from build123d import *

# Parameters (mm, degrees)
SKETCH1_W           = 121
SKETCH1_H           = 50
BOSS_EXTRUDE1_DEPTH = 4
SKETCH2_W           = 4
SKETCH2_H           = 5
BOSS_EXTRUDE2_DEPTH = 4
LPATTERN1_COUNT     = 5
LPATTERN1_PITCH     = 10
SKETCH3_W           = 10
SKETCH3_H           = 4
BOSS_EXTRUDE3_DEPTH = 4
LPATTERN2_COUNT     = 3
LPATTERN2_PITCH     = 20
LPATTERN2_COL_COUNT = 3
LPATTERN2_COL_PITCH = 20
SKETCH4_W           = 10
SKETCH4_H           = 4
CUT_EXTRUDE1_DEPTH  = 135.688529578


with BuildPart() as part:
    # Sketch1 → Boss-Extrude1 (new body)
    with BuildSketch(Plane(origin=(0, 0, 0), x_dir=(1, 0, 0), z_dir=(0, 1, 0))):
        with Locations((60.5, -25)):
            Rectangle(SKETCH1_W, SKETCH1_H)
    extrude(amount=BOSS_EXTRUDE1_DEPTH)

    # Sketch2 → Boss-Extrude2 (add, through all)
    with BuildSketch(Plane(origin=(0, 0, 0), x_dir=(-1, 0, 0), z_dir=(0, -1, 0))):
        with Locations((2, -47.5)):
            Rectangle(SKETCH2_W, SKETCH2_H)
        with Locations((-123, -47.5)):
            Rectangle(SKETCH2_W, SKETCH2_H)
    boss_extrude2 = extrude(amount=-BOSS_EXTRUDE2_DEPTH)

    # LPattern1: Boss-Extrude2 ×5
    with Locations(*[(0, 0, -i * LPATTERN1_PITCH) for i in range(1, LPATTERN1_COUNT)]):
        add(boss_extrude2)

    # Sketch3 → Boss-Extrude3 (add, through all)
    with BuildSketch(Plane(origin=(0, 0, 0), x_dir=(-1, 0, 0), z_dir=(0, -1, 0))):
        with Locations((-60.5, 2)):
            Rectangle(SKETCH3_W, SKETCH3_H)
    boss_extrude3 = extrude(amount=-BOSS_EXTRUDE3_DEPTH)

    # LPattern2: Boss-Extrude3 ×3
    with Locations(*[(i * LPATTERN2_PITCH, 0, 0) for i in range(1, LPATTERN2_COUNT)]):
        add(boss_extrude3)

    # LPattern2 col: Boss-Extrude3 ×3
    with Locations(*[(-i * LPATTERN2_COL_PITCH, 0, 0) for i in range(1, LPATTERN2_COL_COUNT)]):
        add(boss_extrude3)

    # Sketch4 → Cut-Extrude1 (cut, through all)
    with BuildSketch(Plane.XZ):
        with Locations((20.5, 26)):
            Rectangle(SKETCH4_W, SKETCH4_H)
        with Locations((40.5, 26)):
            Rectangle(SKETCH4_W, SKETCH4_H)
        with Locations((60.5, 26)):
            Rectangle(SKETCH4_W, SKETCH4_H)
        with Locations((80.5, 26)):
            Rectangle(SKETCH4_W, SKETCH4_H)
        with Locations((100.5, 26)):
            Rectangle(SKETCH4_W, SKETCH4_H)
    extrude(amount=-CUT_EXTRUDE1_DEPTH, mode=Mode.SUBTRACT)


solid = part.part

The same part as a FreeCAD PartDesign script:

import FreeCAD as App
import Part
import Sketcher
Q = App.Units.Quantity

doc = App.newDocument("Part")
body = doc.addObject("PartDesign::Body", "Body")

sketch1 = doc.addObject("Sketcher::SketchObject", "Sketch")
body.addObject(sketch1)
sketch1.AttachmentSupport = (doc.XZ_Plane, [""])
sketch1.MapMode = "FlatFace"
sketch1.addGeometry([
    Part.LineSegment(App.Vector(0, 0, 0), App.Vector(0, 50, 0)),
    Part.LineSegment(App.Vector(0, 50, 0), App.Vector(121, 50, 0)),
    Part.LineSegment(App.Vector(121, 50, 0), App.Vector(121, 0, 0)),
    Part.LineSegment(App.Vector(121, 0, 0), App.Vector(0, 0, 0)),
], False)
sketch1.addConstraint([
    Sketcher.Constraint("Coincident", 0, 2, 1, 1),
    Sketcher.Constraint("Coincident", 1, 2, 2, 1),
    Sketcher.Constraint("Coincident", 2, 2, 3, 1),
    Sketcher.Constraint("Coincident", 3, 2, 0, 1),
    Sketcher.Constraint("Vertical", 0),
    Sketcher.Constraint("Horizontal", 1),
    Sketcher.Constraint("Vertical", 2),
    Sketcher.Constraint("Horizontal", 3),
    Sketcher.Constraint("Coincident", 3, 2, -1, 1),
    Sketcher.Constraint("DistanceX", 1, 1, 1, 2, Q("121 mm")),
    Sketcher.Constraint("DistanceY", 0, 1, 0, 2, Q("50 mm")),
])
pad1 = doc.addObject("PartDesign::Pad", "Pad")
body.addObject(pad1)
pad1.Profile = sketch1
pad1.Length = 4
pad1.Reversed = True

sketch2 = doc.addObject("Sketcher::SketchObject", "Sketch001")
body.addObject(sketch2)
sketch2.AttachmentSupport = (doc.XZ_Plane, [""])
sketch2.MapMode = "FlatFace"
sketch2.addGeometry([
    Part.LineSegment(App.Vector(0, 45, 0), App.Vector(0, 50, 0)),
    Part.LineSegment(App.Vector(0, 50, 0), App.Vector(-4, 50, 0)),
    Part.LineSegment(App.Vector(-4, 50, 0), App.Vector(-4, 45, 0)),
    Part.LineSegment(App.Vector(-4, 45, 0), App.Vector(0, 45, 0)),
    Part.LineSegment(App.Vector(125, 45, 0), App.Vector(125, 50, 0)),
    Part.LineSegment(App.Vector(125, 50, 0), App.Vector(121, 50, 0)),
    Part.LineSegment(App.Vector(121, 50, 0), App.Vector(121, 45, 0)),
    Part.LineSegment(App.Vector(121, 45, 0), App.Vector(125, 45, 0)),
], False)
sketch2.addConstraint([
    Sketcher.Constraint("Coincident", 0, 2, 1, 1),
    Sketcher.Constraint("Coincident", 1, 2, 2, 1),
    Sketcher.Constraint("Coincident", 2, 2, 3, 1),
    Sketcher.Constraint("Coincident", 3, 2, 0, 1),
    Sketcher.Constraint("Coincident", 4, 2, 5, 1),
    Sketcher.Constraint("Coincident", 5, 2, 6, 1),
    Sketcher.Constraint("Coincident", 6, 2, 7, 1),
    Sketcher.Constraint("Coincident", 7, 2, 4, 1),
    Sketcher.Constraint("Vertical", 0),
    Sketcher.Constraint("Horizontal", 1),
    Sketcher.Constraint("Vertical", 2),
    Sketcher.Constraint("Horizontal", 3),
    Sketcher.Constraint("Vertical", 4),
    Sketcher.Constraint("Horizontal", 5),
    Sketcher.Constraint("Vertical", 6),
    Sketcher.Constraint("Horizontal", 7),
    Sketcher.Constraint("PointOnObject", 0, 2, -2),
    Sketcher.Constraint("Horizontal", 1, 2, 4, 2),
    Sketcher.Constraint("Horizontal", 3, 2, 6, 2),
    Sketcher.Constraint("Equal", 3, 5),
    Sketcher.Constraint("DistanceX", 1, 2, 1, 1, Q("4 mm")),
    Sketcher.Constraint("DistanceY", 0, 1, 0, 2, Q("5 mm")),
    Sketcher.Constraint("DistanceY", -1, 1, 0, 2, Q("50 mm")),
    Sketcher.Constraint("DistanceX", -1, 1, 4, 2, Q("125 mm")),
])
pad2 = doc.addObject("PartDesign::Pad", "Pad001")
body.addObject(pad2)
pad2.Profile = sketch2
pad2.Length = 4
pad2.Reversed = True
doc.recompute()

linearpattern = doc.addObject("PartDesign::LinearPattern", "LinearPattern")
body.addObject(linearpattern)
linearpattern.Originals = [pad2]
linearpattern.Direction = (doc.Z_Axis, [""])
linearpattern.Mode = "offset"
linearpattern.Offset = 10
linearpattern.Occurrences = 5
linearpattern.Reversed = True
body.Tip = linearpattern

sketch3 = doc.addObject("Sketcher::SketchObject", "Sketch002")
body.addObject(sketch3)
sketch3.AttachmentSupport = (doc.XZ_Plane, [""])
sketch3.MapMode = "FlatFace"
sketch3.addGeometry([
    Part.LineSegment(App.Vector(65.5, -4, 0), App.Vector(65.5, 0, 0)),
    Part.LineSegment(App.Vector(65.5, 0, 0), App.Vector(55.5, 0, 0)),
    Part.LineSegment(App.Vector(55.5, 0, 0), App.Vector(55.5, -4, 0)),
    Part.LineSegment(App.Vector(55.5, -4, 0), App.Vector(65.5, -4, 0)),
], False)
sketch3.addConstraint([
    Sketcher.Constraint("Coincident", 0, 2, 1, 1),
    Sketcher.Constraint("Coincident", 1, 2, 2, 1),
    Sketcher.Constraint("Coincident", 2, 2, 3, 1),
    Sketcher.Constraint("Coincident", 3, 2, 0, 1),
    Sketcher.Constraint("Vertical", 0),
    Sketcher.Constraint("Horizontal", 1),
    Sketcher.Constraint("Vertical", 2),
    Sketcher.Constraint("Horizontal", 3),
    Sketcher.Constraint("PointOnObject", 0, 2, -1),
    Sketcher.Constraint("DistanceX", 1, 2, 1, 1, Q("10 mm")),
    Sketcher.Constraint("DistanceY", 0, 1, 0, 2, Q("4 mm")),
    Sketcher.Constraint("DistanceX", -1, 1, 0, 2, Q("65.5 mm")),
])
pad3 = doc.addObject("PartDesign::Pad", "Pad002")
body.addObject(pad3)
pad3.Profile = sketch3
pad3.Length = 4
pad3.Reversed = True
doc.recompute()

linearpattern2 = doc.addObject("PartDesign::LinearPattern", "LinearPattern001")
body.addObject(linearpattern2)
linearpattern2.Originals = [pad3]
linearpattern2.Direction = (doc.X_Axis, [""])
linearpattern2.Mode = "offset"
linearpattern2.Offset = 20
linearpattern2.Occurrences = 3
body.Tip = linearpattern2
doc.recompute()

linearpattern3 = doc.addObject("PartDesign::LinearPattern", "LinearPattern002")
body.addObject(linearpattern3)
linearpattern3.Originals = [pad3]
linearpattern3.Direction = (doc.X_Axis, [""])
linearpattern3.Mode = "offset"
linearpattern3.Offset = 20
linearpattern3.Occurrences = 3
linearpattern3.Reversed = True
body.Tip = linearpattern3

sketch4 = doc.addObject("Sketcher::SketchObject", "Sketch003")
body.addObject(sketch4)
sketch4.AttachmentSupport = (doc.XZ_Plane, [""])
sketch4.MapMode = "FlatFace"
sketch4.addGeometry([
    Part.LineSegment(App.Vector(15.5, 28, 0), App.Vector(15.5, 24, 0)),
    Part.LineSegment(App.Vector(15.5, 24, 0), App.Vector(25.5, 24, 0)),
    Part.LineSegment(App.Vector(25.5, 24, 0), App.Vector(25.5, 28, 0)),
    Part.LineSegment(App.Vector(25.5, 28, 0), App.Vector(15.5, 28, 0)),
    Part.LineSegment(App.Vector(35.5, 28, 0), App.Vector(35.5, 24, 0)),
    Part.LineSegment(App.Vector(35.5, 24, 0), App.Vector(45.5, 24, 0)),
    Part.LineSegment(App.Vector(45.5, 24, 0), App.Vector(45.5, 28, 0)),
    Part.LineSegment(App.Vector(45.5, 28, 0), App.Vector(35.5, 28, 0)),
    Part.LineSegment(App.Vector(55.5, 28, 0), App.Vector(55.5, 24, 0)),
    Part.LineSegment(App.Vector(55.5, 24, 0), App.Vector(65.5, 24, 0)),
    Part.LineSegment(App.Vector(65.5, 24, 0), App.Vector(65.5, 28, 0)),
    Part.LineSegment(App.Vector(65.5, 28, 0), App.Vector(55.5, 28, 0)),
    Part.LineSegment(App.Vector(75.5, 28, 0), App.Vector(75.5, 24, 0)),
    Part.LineSegment(App.Vector(75.5, 24, 0), App.Vector(85.5, 24, 0)),
    Part.LineSegment(App.Vector(85.5, 24, 0), App.Vector(85.5, 28, 0)),
    Part.LineSegment(App.Vector(85.5, 28, 0), App.Vector(75.5, 28, 0)),
    Part.LineSegment(App.Vector(95.5, 28, 0), App.Vector(95.5, 24, 0)),
    Part.LineSegment(App.Vector(95.5, 24, 0), App.Vector(105.5, 24, 0)),
    Part.LineSegment(App.Vector(105.5, 24, 0), App.Vector(105.5, 28, 0)),
    Part.LineSegment(App.Vector(105.5, 28, 0), App.Vector(95.5, 28, 0)),
], False)
sketch4.addConstraint([
    Sketcher.Constraint("Coincident", 0, 2, 1, 1),
    Sketcher.Constraint("Coincident", 1, 2, 2, 1),
    Sketcher.Constraint("Coincident", 2, 2, 3, 1),
    Sketcher.Constraint("Coincident", 3, 2, 0, 1),
    Sketcher.Constraint("Coincident", 4, 2, 5, 1),
    Sketcher.Constraint("Coincident", 5, 2, 6, 1),
    Sketcher.Constraint("Coincident", 6, 2, 7, 1),
    Sketcher.Constraint("Coincident", 7, 2, 4, 1),
    Sketcher.Constraint("Coincident", 8, 2, 9, 1),
    Sketcher.Constraint("Coincident", 9, 2, 10, 1),
    Sketcher.Constraint("Coincident", 10, 2, 11, 1),
    Sketcher.Constraint("Coincident", 11, 2, 8, 1),
    Sketcher.Constraint("Coincident", 12, 2, 13, 1),
    Sketcher.Constraint("Coincident", 13, 2, 14, 1),
    Sketcher.Constraint("Coincident", 14, 2, 15, 1),
    Sketcher.Constraint("Coincident", 15, 2, 12, 1),
    Sketcher.Constraint("Coincident", 16, 2, 17, 1),
    Sketcher.Constraint("Coincident", 17, 2, 18, 1),
    Sketcher.Constraint("Coincident", 18, 2, 19, 1),
    Sketcher.Constraint("Coincident", 19, 2, 16, 1),
    Sketcher.Constraint("Vertical", 0),
    Sketcher.Constraint("Horizontal", 1),
    Sketcher.Constraint("Vertical", 2),
    Sketcher.Constraint("Horizontal", 3),
    Sketcher.Constraint("Vertical", 4),
    Sketcher.Constraint("Horizontal", 5),
    Sketcher.Constraint("Vertical", 6),
    Sketcher.Constraint("Horizontal", 7),
    Sketcher.Constraint("Vertical", 8),
    Sketcher.Constraint("Horizontal", 9),
    Sketcher.Constraint("Vertical", 10),
    Sketcher.Constraint("Horizontal", 11),
    Sketcher.Constraint("Vertical", 12),
    Sketcher.Constraint("Horizontal", 13),
    Sketcher.Constraint("Vertical", 14),
    Sketcher.Constraint("Horizontal", 15),
    Sketcher.Constraint("Vertical", 16),
    Sketcher.Constraint("Horizontal", 17),
    Sketcher.Constraint("Vertical", 18),
    Sketcher.Constraint("Horizontal", 19),
    Sketcher.Constraint("Horizontal", 1, 2, 4, 2),
    Sketcher.Constraint("Horizontal", 3, 2, 6, 2),
    Sketcher.Constraint("Horizontal", 5, 2, 8, 2),
    Sketcher.Constraint("Horizontal", 7, 2, 10, 2),
    Sketcher.Constraint("Horizontal", 9, 2, 12, 2),
    Sketcher.Constraint("Horizontal", 11, 2, 14, 2),
    Sketcher.Constraint("Horizontal", 13, 2, 16, 2),
    Sketcher.Constraint("Horizontal", 15, 2, 18, 2),
    Sketcher.Constraint("Equal", 3, 5),
    Sketcher.Constraint("Equal", 7, 9),
    Sketcher.Constraint("Equal", 11, 13),
    Sketcher.Constraint("Equal", 15, 17),
    Sketcher.Constraint("DistanceX", 1, 1, 1, 2, Q("10 mm")),
    Sketcher.Constraint("DistanceY", 0, 2, 0, 1, Q("4 mm")),
    Sketcher.Constraint("DistanceY", -1, 1, 0, 2, Q("24 mm")),
    Sketcher.Constraint("DistanceX", 1, 2, 4, 2, Q("10 mm")),
    Sketcher.Constraint("DistanceX", 5, 2, 8, 2, Q("10 mm")),
    Sketcher.Constraint("DistanceX", 9, 2, 12, 2, Q("10 mm")),
    Sketcher.Constraint("DistanceX", 13, 2, 16, 2, Q("10 mm")),
    Sketcher.Constraint("DistanceX", -1, 1, 0, 2, Q("15.5 mm")),
])
pocket1 = doc.addObject("PartDesign::Pocket", "Pocket")
body.addObject(pocket1)
pocket1.Profile = sketch4
pocket1.Type = "ThroughAll"

doc.recompute()
